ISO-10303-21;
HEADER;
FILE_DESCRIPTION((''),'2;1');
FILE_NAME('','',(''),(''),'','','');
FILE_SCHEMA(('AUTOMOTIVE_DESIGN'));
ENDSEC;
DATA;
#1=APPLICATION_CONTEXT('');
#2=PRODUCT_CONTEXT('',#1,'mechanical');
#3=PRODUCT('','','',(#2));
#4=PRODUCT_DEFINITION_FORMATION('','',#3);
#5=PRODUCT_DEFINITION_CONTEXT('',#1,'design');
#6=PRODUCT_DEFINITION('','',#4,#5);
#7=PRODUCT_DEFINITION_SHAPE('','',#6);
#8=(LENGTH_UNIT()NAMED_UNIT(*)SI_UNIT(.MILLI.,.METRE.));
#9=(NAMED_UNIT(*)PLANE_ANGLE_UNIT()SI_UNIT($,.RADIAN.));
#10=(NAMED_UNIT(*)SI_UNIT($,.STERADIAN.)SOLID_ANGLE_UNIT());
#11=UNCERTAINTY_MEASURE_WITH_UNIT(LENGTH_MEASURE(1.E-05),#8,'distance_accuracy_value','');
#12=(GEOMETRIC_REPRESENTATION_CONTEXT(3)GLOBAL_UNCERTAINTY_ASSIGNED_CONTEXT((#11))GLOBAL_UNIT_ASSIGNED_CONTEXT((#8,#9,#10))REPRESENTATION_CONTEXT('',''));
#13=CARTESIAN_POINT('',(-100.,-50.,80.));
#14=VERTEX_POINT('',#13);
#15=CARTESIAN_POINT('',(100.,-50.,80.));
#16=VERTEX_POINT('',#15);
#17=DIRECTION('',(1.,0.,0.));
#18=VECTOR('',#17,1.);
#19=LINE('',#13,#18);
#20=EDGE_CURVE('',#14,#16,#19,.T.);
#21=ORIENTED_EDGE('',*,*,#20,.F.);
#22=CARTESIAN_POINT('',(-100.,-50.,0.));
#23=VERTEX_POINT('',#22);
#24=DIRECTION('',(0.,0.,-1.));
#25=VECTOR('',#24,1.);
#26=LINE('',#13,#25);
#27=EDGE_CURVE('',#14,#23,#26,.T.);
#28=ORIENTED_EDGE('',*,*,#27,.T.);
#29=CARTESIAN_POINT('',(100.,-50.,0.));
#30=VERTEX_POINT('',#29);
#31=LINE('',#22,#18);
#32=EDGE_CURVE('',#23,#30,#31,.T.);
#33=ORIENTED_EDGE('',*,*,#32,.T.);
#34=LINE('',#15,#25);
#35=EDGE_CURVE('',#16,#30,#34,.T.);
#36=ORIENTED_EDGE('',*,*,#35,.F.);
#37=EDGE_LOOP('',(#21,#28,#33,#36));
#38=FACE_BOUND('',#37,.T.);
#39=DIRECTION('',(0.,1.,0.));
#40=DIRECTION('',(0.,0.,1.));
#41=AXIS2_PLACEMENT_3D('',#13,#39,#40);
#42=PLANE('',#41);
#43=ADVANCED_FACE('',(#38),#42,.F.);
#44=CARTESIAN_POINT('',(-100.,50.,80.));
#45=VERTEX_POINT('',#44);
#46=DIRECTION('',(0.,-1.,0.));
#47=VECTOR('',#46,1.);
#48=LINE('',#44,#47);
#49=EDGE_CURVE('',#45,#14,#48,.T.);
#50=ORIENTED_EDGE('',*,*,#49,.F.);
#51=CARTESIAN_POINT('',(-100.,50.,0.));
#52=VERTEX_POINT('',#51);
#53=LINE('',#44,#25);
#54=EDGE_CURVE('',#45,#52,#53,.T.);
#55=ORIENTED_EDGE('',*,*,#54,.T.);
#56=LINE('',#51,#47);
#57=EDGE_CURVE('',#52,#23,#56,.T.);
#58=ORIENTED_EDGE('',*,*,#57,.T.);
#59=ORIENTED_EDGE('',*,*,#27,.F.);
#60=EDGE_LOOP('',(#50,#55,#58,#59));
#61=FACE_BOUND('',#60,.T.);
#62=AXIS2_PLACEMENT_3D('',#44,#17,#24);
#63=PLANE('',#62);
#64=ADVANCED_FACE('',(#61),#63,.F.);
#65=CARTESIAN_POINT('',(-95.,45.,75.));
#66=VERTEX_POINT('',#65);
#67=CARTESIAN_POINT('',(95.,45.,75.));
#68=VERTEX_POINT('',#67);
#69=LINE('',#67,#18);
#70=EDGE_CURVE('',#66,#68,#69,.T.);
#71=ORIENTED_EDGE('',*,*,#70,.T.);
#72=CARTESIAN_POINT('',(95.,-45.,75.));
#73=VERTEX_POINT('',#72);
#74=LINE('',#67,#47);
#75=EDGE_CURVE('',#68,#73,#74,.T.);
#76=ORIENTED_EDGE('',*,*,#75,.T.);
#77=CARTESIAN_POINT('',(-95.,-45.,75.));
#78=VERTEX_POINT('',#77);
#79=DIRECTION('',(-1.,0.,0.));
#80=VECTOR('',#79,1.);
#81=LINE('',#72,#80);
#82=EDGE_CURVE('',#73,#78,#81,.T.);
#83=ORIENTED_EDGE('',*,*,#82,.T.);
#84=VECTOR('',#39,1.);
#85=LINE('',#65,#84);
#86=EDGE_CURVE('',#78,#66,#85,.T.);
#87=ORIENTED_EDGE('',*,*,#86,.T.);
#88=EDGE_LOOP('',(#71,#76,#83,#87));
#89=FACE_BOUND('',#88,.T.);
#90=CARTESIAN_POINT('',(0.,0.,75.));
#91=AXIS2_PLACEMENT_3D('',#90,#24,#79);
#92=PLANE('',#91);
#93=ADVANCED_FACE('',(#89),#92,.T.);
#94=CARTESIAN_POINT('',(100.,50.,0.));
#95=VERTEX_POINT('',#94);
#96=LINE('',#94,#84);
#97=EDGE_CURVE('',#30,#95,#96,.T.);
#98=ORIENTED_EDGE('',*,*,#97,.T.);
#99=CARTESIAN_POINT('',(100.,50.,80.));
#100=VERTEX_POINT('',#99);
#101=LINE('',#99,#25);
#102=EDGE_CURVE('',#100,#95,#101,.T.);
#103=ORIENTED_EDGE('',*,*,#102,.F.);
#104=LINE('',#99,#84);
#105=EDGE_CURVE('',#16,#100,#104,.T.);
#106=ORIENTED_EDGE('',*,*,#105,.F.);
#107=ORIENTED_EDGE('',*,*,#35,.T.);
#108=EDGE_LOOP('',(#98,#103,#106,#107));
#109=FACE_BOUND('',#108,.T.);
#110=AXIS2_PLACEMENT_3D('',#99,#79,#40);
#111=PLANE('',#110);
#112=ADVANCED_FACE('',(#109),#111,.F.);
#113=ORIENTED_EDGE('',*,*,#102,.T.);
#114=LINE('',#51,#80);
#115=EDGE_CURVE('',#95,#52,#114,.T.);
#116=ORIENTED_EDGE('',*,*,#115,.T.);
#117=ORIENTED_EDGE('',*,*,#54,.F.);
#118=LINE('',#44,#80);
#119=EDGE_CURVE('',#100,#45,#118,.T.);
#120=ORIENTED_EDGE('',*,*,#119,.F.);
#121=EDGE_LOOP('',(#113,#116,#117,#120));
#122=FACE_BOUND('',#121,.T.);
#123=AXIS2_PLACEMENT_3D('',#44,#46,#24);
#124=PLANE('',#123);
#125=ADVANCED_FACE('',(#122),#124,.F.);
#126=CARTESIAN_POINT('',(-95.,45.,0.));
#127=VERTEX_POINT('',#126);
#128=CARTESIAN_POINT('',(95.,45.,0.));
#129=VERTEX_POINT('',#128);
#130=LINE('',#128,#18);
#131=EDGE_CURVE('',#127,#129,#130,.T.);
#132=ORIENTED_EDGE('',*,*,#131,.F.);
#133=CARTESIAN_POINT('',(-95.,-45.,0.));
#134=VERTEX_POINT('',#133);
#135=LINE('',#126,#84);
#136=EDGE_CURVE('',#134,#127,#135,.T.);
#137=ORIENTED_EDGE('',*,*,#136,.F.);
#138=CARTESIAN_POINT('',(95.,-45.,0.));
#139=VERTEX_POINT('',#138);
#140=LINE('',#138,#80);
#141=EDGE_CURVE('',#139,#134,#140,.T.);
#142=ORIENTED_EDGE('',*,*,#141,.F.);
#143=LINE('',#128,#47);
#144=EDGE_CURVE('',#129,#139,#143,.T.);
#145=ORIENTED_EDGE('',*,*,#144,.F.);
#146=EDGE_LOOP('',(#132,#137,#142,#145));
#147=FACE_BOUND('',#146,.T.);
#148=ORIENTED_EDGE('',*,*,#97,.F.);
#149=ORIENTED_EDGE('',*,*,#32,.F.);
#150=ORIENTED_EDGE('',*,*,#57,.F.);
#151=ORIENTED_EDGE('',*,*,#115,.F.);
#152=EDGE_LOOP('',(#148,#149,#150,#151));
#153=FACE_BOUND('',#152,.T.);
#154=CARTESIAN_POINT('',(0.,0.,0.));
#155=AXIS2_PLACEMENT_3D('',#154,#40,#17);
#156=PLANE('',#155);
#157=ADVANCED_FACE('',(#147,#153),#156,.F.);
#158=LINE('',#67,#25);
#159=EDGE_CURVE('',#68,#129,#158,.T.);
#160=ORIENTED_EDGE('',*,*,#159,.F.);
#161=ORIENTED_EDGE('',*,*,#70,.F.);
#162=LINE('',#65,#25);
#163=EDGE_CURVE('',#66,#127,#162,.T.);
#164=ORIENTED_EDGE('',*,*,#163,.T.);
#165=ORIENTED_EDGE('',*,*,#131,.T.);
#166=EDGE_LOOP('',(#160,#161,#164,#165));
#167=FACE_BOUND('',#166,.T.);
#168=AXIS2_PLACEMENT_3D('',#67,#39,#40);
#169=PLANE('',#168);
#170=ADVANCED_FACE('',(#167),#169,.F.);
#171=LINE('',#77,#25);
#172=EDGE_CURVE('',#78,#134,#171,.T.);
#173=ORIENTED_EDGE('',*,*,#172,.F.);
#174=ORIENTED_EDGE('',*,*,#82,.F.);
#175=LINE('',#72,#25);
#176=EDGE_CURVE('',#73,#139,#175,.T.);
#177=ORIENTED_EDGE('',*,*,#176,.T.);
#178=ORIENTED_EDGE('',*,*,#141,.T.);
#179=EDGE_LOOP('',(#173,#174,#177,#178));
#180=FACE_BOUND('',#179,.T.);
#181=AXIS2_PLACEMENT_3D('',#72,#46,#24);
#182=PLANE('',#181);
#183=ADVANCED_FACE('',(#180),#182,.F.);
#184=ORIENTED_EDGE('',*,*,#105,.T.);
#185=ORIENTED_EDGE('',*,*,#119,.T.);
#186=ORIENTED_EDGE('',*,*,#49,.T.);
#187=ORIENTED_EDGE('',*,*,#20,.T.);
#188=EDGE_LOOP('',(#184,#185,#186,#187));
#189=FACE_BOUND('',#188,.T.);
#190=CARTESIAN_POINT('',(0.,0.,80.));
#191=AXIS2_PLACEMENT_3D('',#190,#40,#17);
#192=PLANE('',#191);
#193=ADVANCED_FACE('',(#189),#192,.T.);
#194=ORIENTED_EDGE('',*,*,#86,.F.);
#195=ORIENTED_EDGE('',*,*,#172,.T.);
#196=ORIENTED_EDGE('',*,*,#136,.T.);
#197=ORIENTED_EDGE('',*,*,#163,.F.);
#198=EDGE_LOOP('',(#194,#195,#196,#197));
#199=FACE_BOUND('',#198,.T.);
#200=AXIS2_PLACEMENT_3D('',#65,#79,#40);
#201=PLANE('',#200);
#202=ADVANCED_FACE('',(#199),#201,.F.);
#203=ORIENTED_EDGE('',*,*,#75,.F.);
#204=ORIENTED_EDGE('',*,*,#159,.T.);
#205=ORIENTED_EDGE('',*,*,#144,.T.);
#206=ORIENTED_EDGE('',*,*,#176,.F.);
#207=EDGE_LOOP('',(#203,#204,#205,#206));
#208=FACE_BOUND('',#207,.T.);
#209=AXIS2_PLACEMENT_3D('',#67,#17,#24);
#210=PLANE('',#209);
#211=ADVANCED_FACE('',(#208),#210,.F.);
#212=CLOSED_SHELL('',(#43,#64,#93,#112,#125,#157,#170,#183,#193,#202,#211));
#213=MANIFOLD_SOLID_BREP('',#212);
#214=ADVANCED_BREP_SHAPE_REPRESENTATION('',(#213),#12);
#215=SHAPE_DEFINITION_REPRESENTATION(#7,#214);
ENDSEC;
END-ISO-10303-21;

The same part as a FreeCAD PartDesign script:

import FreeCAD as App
import Part
import Sketcher

V = App.Vector


def add_polygon(sketch, points):
    """Adds a closed chain of lines whose ends are joined by coincident constraints."""
    first, n = sketch.GeometryCount, len(points)
    for a, b in zip(points, points[1:] + points[:1]):
        sketch.addGeometry(Part.LineSegment(App.Vector(*a, 0), App.Vector(*b, 0)), False)
    for i in range(n):
        sketch.addConstraint(Sketcher.Constraint("Coincident", first + i, 2, first + (i + 1) % n, 1))

doc = App.newDocument("Part")
body = doc.addObject("PartDesign::Body", "Body")

sketch1 = doc.addObject("Sketcher::SketchObject", "Sketch")
body.addObject(sketch1)
sketch1.AttachmentSupport = (doc.XY_Plane, [""])
sketch1.MapMode = "FlatFace"
add_polygon(sketch1, [(-100, 50), (-100, -50), (100, -50), (100, 50)])
sketch1.addConstraint([
    Sketcher.Constraint("Vertical", 0),
    Sketcher.Constraint("Horizontal", 1),
    Sketcher.Constraint("Vertical", 2),
    Sketcher.Constraint("Horizontal", 3),
    Sketcher.Constraint("Symmetric", 0, 2, 2, 2, -1, 1),
    Sketcher.Constraint("DistanceX", 1, 1, 1, 2, 200.0),
    Sketcher.Constraint("DistanceY", 0, 2, 0, 1, 100.0),
])
pad1 = doc.addObject("PartDesign::Pad", "Pad")
body.addObject(pad1)
pad1.Profile = sketch1
pad1.Length = 80

sketch2 = doc.addObject("Sketcher::SketchObject", "Sketch001")
body.addObject(sketch2)
sketch2.AttachmentSupport = (doc.XY_Plane, [""])
sketch2.MapMode = "FlatFace"
add_polygon(sketch2, [(95, 45), (95, -45), (-95, -45), (-95, 45)])
sketch2.addConstraint([
    Sketcher.Constraint("Vertical", 0),
    Sketcher.Constraint("Horizontal", 1),
    Sketcher.Constraint("Vertical", 2),
    Sketcher.Constraint("Horizontal", 3),
    Sketcher.Constraint("Symmetric", 0, 2, 2, 2, -1, 1),
    Sketcher.Constraint("DistanceX", 1, 2, 1, 1, 190.0),
    Sketcher.Constraint("DistanceY", 0, 2, 0, 1, 90.0),
])
pocket1 = doc.addObject("PartDesign::Pocket", "Pocket")
body.addObject(pocket1)
pocket1.Profile = sketch2
pocket1.Length = 75
pocket1.Reversed = True

doc.recompute()
